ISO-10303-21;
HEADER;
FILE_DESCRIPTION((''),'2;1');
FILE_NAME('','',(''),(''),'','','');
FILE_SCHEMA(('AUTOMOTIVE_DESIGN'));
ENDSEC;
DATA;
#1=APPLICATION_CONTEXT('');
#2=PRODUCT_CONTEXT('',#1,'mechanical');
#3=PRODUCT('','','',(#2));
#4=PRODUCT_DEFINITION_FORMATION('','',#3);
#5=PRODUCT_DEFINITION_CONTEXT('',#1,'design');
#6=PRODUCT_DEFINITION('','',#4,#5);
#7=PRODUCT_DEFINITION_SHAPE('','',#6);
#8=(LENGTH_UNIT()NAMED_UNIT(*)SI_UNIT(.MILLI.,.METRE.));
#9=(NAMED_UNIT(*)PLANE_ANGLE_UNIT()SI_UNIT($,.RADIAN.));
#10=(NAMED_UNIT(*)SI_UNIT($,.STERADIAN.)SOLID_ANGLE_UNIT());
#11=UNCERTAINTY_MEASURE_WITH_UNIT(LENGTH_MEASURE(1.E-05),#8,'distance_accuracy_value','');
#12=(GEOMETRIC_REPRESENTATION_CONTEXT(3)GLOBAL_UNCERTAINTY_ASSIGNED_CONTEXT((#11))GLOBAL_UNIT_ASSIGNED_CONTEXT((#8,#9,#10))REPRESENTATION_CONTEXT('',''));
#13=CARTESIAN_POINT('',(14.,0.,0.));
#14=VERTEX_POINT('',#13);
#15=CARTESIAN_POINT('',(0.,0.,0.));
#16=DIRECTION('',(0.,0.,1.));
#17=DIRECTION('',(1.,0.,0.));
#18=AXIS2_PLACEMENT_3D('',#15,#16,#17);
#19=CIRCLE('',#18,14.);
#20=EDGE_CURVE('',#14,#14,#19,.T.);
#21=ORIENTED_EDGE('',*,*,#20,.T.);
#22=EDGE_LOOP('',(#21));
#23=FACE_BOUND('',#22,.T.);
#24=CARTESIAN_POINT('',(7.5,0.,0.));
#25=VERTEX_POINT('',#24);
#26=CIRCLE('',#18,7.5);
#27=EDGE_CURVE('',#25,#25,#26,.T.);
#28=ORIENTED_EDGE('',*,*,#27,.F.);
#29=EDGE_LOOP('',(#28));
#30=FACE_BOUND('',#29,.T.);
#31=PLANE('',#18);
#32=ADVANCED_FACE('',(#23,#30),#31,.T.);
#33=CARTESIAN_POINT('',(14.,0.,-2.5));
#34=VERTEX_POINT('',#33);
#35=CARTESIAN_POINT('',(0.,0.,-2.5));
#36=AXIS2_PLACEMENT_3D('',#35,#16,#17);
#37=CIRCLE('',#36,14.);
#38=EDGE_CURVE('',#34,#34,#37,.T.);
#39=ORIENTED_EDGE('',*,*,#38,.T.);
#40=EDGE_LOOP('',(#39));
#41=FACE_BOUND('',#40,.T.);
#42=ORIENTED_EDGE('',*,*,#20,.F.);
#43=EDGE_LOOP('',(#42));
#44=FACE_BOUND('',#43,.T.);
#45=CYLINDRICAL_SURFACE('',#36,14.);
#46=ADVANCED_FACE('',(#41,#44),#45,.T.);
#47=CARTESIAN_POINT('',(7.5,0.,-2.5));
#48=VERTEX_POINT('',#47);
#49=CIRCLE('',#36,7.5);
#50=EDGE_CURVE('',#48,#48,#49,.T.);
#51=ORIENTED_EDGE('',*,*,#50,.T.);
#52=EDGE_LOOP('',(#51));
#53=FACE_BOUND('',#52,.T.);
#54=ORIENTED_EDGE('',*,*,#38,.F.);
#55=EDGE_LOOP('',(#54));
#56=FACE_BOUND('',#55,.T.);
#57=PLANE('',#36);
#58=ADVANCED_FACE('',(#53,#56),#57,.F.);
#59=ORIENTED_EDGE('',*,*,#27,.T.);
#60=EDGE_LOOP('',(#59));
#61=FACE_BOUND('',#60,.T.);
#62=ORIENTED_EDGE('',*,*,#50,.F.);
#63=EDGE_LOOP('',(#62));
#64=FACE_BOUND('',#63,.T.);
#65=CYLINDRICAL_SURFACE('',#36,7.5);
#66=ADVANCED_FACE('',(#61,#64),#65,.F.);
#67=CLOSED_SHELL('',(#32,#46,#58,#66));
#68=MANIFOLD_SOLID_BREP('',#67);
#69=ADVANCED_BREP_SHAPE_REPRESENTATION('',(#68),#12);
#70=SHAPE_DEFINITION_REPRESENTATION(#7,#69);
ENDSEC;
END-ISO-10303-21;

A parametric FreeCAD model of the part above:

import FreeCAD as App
import Part
import Sketcher
from FreeCAD import Vector
Q = App.Units.Quantity

doc = App.newDocument("Part")
body = doc.addObject("PartDesign::Body", "Body")

sketch1 = body.newObject("Sketcher::SketchObject", "Sketch")
sketch1.AttachmentSupport = (doc.getObject("XY_Plane"), [""])
sketch1.MapMode = "FlatFace"
sketch1.addGeometry(Part.Circle(Vector(0, 0, 0), Vector(0, 0, 1), 14), False)
sketch1.addGeometry(Part.Circle(Vector(0, 0, 0), Vector(0, 0, 1), 8), False)
sketch1.addConstraint(Sketcher.Constraint("Coincident", 0, 3, -1, 1))
sketch1.addConstraint(Sketcher.Constraint("Coincident", 1, 3, -1, 1))
sketch1.addConstraint(Sketcher.Constraint("Diameter", 0, Q("28 mm")))
sketch1.addConstraint(Sketcher.Constraint("Diameter", 1, Q("15 mm")))
pad1 = body.newObject("PartDesign::Pad", "Pad")
pad1.Profile = sketch1
pad1.Length = 2.5
pad1.Reversed = True

doc.recompute()
